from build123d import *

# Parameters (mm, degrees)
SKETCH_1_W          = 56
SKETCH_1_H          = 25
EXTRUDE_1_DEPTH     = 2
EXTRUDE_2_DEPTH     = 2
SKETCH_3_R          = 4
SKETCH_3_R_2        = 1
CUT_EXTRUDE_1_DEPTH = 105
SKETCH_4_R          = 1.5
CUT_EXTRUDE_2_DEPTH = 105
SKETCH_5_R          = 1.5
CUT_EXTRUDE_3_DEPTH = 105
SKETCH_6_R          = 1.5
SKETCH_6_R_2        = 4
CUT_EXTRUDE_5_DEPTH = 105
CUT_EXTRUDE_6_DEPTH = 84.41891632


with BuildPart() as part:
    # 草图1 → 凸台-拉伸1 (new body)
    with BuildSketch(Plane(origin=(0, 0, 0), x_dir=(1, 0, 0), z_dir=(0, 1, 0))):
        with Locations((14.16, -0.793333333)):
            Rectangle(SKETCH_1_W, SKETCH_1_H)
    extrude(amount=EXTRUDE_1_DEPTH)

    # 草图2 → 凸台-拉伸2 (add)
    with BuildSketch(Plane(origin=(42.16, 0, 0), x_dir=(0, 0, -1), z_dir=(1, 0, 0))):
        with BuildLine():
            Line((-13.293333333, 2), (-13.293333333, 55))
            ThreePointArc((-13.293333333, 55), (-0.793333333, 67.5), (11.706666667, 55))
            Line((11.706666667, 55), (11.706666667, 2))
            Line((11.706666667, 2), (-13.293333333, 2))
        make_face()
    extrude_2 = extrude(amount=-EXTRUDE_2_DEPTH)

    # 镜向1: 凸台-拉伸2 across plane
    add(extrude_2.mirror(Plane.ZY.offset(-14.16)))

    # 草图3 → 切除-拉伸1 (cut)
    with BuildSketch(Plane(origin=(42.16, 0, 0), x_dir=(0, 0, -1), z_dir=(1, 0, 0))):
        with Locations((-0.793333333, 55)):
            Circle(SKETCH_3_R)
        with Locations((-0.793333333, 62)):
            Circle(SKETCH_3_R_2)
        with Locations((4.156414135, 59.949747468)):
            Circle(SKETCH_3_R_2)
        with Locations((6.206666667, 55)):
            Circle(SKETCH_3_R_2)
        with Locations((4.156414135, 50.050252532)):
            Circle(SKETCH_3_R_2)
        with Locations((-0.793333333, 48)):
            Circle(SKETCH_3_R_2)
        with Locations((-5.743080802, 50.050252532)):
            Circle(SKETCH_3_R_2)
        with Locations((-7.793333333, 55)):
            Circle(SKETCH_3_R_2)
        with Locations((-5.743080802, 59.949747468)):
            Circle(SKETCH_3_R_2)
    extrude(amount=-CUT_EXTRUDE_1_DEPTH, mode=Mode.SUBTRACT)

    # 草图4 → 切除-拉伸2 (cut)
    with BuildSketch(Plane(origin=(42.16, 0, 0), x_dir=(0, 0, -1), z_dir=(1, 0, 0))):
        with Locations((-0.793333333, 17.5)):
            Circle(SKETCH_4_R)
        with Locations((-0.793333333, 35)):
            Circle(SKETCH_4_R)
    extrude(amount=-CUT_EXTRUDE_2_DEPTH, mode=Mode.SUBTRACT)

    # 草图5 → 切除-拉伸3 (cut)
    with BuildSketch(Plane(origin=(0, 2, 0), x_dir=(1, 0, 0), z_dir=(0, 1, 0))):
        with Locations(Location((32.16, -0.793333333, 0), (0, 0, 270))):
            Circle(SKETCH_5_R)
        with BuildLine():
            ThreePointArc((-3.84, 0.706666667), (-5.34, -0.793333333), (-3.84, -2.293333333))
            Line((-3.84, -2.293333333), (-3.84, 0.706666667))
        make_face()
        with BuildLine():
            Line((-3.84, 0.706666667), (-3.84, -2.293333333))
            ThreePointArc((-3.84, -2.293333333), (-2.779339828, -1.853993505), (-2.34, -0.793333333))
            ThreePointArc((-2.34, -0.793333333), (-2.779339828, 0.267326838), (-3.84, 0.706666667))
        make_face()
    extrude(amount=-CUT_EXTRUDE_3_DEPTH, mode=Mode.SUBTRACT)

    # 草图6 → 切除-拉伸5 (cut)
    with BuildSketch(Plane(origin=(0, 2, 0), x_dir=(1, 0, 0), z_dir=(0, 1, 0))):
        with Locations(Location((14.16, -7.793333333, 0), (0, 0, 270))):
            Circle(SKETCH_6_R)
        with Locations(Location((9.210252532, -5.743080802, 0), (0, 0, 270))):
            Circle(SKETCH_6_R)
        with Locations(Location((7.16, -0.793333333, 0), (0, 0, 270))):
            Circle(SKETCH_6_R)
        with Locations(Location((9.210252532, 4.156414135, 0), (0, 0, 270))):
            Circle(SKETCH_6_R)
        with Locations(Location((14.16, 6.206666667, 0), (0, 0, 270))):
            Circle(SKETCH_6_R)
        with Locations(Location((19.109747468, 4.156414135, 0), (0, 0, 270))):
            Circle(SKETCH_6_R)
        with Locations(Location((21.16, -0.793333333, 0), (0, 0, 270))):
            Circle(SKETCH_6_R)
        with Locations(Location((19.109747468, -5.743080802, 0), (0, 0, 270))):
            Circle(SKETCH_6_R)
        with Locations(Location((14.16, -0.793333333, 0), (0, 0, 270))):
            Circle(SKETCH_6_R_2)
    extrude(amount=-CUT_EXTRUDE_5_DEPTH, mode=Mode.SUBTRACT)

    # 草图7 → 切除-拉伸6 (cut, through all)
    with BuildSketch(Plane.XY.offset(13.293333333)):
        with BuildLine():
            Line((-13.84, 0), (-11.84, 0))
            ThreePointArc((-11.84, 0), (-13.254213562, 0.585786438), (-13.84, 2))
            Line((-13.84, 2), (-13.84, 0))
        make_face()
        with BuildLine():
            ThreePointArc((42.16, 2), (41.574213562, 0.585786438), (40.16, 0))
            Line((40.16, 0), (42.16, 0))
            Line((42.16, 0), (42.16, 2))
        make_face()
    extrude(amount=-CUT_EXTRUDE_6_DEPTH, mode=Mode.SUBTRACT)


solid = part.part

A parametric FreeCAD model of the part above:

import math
import FreeCAD as App
import Part
import Sketcher
Q = App.Units.Quantity


def add_polygon(sketch, points):
    """Adds a closed chain of lines whose ends are joined by coincident constraints."""
    first, n = sketch.GeometryCount, len(points)
    for a, b in zip(points, points[1:] + points[:1]):
        sketch.addGeometry(Part.LineSegment(App.Vector(*a, 0), App.Vector(*b, 0)), False)
    for i in range(n):
        sketch.addConstraint(Sketcher.Constraint("Coincident", first + i, 2, first + (i + 1) % n, 1))

doc = App.newDocument("Part")
body = doc.addObject("PartDesign::Body", "Body")

sketch1 = doc.addObject("Sketcher::SketchObject", "Sketch")
body.addObject(sketch1)
sketch1.AttachmentSupport = (doc.XZ_Plane, [""])
sketch1.MapMode = "FlatFace"
add_polygon(sketch1, [(-14, -12), (-14, 13), (42, 13), (42, -12)])
sketch1.addConstraint(Sketcher.Constraint("Vertical", 0))
sketch1.addConstraint(Sketcher.Constraint("Horizontal", 1))
sketch1.addConstraint(Sketcher.Constraint("Vertical", 2))
sketch1.addConstraint(Sketcher.Constraint("Horizontal", 3))
sketch1.addConstraint(Sketcher.Constraint("DistanceX", 1, 1, 1, 2, Q("56 mm")))
sketch1.addConstraint(Sketcher.Constraint("DistanceY", 0, 1, 0, 2, Q("25 mm")))
sketch1.addConstraint(Sketcher.Constraint("DistanceX", 0, 2, -1, 1, Q("13.84 mm")))
sketch1.addConstraint(Sketcher.Constraint("DistanceY", -1, 1, 0, 2, Q("13.293333 mm")))
pad1 = doc.addObject("PartDesign::Pad", "Pad")
body.addObject(pad1)
pad1.Profile = sketch1
pad1.Length = 2
pad1.Reversed = True

sketch2 = doc.addObject("Sketcher::SketchObject", "Sketch001")
body.addObject(sketch2)
sketch2.AttachmentSupport = (doc.YZ_Plane, [""])
sketch2.MapMode = "FlatFace"
sketch2.AttachmentOffset = App.Placement(App.Vector(0, 0, 42.16), App.Rotation())
sketch2.addGeometry(Part.LineSegment(App.Vector(55, 13, 0), App.Vector(2, 13, 0)), False)
sketch2.addGeometry(Part.LineSegment(App.Vector(2, 13, 0), App.Vector(2, -12, 0)), False)
sketch2.addGeometry(Part.LineSegment(App.Vector(2, -12, 0), App.Vector(55, -12, 0)), False)
sketch2.addGeometry(Part.ArcOfCircle(Part.Circle(App.Vector(55, 1, 0), App.Vector(0, 0, 1), 12), math.radians(-90), math.radians(90)), False)
sketch2.addConstraint(Sketcher.Constraint("Coincident", 0, 2, 1, 1))
sketch2.addConstraint(Sketcher.Constraint("Coincident", 1, 2, 2, 1))
sketch2.addConstraint(Sketcher.Constraint("Tangent", 2, 2, 3, 1))
sketch2.addConstraint(Sketcher.Constraint("Tangent", 3, 2, 0, 1))
sketch2.addConstraint(Sketcher.Constraint("Horizontal", 0))
sketch2.addConstraint(Sketcher.Constraint("Vertical", 1))
sketch2.addConstraint(Sketcher.Constraint("Horizontal", 2))
sketch2.addConstraint(Sketcher.Constraint("Radius", 3, Q("12.5 mm")))
sketch2.addConstraint(Sketcher.Constraint("DistanceX", 0, 2, 0, 1, Q("53 mm")))
sketch2.addConstraint(Sketcher.Constraint("DistanceX", -1, 1, 3, 3, Q("55 mm")))
sketch2.addConstraint(Sketcher.Constraint("DistanceY", -1, 1, 3, 3, Q("0.793333 mm")))
pad2 = doc.addObject("PartDesign::Pad", "Pad001")
body.addObject(pad2)
pad2.Profile = sketch2
pad2.Length = 2
pad2.Reversed = True
doc.recompute()

datumplane = doc.addObject("PartDesign::Plane", "DatumPlane")
body.addObject(datumplane)
datumplane.AttachmentSupport = (doc.YZ_Plane, [""])
datumplane.MapMode = "FlatFace"
datumplane.AttachmentOffset = App.Placement(App.Vector(0, 0, 14.16), App.Rotation())
mirrored = doc.addObject("PartDesign::Mirrored", "Mirrored")
body.addObject(mirrored)
mirrored.Originals = [pad2]
mirrored.MirrorPlane = (datumplane, [""])
body.Tip = mirrored

sketch3 = doc.addObject("Sketcher::SketchObject", "Sketch002")
body.addObject(sketch3)
sketch3.AttachmentSupport = (doc.YZ_Plane, [""])
sketch3.MapMode = "FlatFace"
sketch3.AttachmentOffset = App.Placement(App.Vector(0, 0, 42.16), App.Rotation())
sketch3.addGeometry(Part.Circle(App.Vector(55, 0.8, 0), App.Vector(0, 0, 1), 4), False)
sketch3.addGeometry(Part.Circle(App.Vector(62, 0.8, 0), App.Vector(0, 0, 1), 1), False)
sketch3.addGeometry(Part.Circle(App.Vector(59.9, -4.2, 0), App.Vector(0, 0, 1), 1), False)
sketch3.addGeometry(Part.Circle(App.Vector(55, -6.2, 0), App.Vector(0, 0, 1), 1), False)
sketch3.addGeometry(Part.Circle(App.Vector(50.1, -4.2, 0), App.Vector(0, 0, 1), 1), False)
sketch3.addGeometry(Part.Circle(App.Vector(48, 0.8, 0), App.Vector(0, 0, 1), 1), False)
sketch3.addGeometry(Part.Circle(App.Vector(50.1, 5.7, 0), App.Vector(0, 0, 1), 1), False)
sketch3.addGeometry(Part.Circle(App.Vector(55, 7.8, 0), App.Vector(0, 0, 1), 1), False)
sketch3.addGeometry(Part.Circle(App.Vector(59.9, 5.7, 0), App.Vector(0, 0, 1), 1), False)
sketch3.addConstraint(Sketcher.Constraint("Equal", 1, 2))
sketch3.addConstraint(Sketcher.Constraint("Equal", 2, 3))
sketch3.addConstraint(Sketcher.Constraint("Equal", 3, 4))
sketch3.addConstraint(Sketcher.Constraint("Equal", 4, 5))
sketch3.addConstraint(Sketcher.Constraint("Equal", 5, 6))
sketch3.addConstraint(Sketcher.Constraint("Equal", 6, 7))
sketch3.addConstraint(Sketcher.Constraint("Equal", 7, 8))
sketch3.addConstraint(Sketcher.Constraint("Horizontal", 0, 3, 1, 3))
sketch3.addConstraint(Sketcher.Constraint("Horizontal", 2, 3, 4, 3))
sketch3.addConstraint(Sketcher.Constraint("Horizontal", 1, 3, 5, 3))
sketch3.addConstraint(Sketcher.Constraint("Horizontal", 6, 3, 8, 3))
sketch3.addConstraint(Sketcher.Constraint("Vertical", 0, 3, 3, 3))
sketch3.addConstraint(Sketcher.Constraint("Vertical", 4, 3, 6, 3))
sketch3.addConstraint(Sketcher.Constraint("Vertical", 3, 3, 7, 3))
sketch3.addConstraint(Sketcher.Constraint("Vertical", 2, 3, 8, 3))
sketch3.addConstraint(Sketcher.Constraint("Diameter", 0, Q("8 mm")))
sketch3.addConstraint(Sketcher.Constraint("Diameter", 1, Q("2 mm")))
sketch3.addConstraint(Sketcher.Constraint("DistanceX", -1, 1, 0, 3, Q("55 mm")))
sketch3.addConstraint(Sketcher.Constraint("DistanceX", -1, 1, 1, 3, Q("62 mm")))
sketch3.addConstraint(Sketcher.Constraint("DistanceX", -1, 1, 5, 3, Q("48 mm")))
sketch3.addConstraint(Sketcher.Constraint("DistanceY", 3, 3, 0, 3, Q("7 mm")))
sketch3.addConstraint(Sketcher.Constraint("DistanceY", 0, 3, 7, 3, Q("7 mm")))
sketch3.addConstraint(Sketcher.Constraint("DistanceY", -1, 1, 6, 3, Q("5.743081 mm")))
sketch3.addConstraint(Sketcher.Constraint("DistanceY", -1, 1, 0, 3, Q("0.793333 mm")))
sketch3.addConstraint(Sketcher.Constraint("DistanceX", -1, 1, 2, 3, Q("59.949747 mm")))
sketch3.addConstraint(Sketcher.Constraint("DistanceY", 2, 3, -1, 1, Q("4.156414 mm")))
sketch3.addConstraint(Sketcher.Constraint("DistanceX", -1, 1, 4, 3, Q("50.050253 mm")))
pocket1 = doc.addObject("PartDesign::Pocket", "Pocket")
body.addObject(pocket1)
pocket1.Profile = sketch3
pocket1.Length = 105

sketch4 = doc.addObject("Sketcher::SketchObject", "Sketch003")
body.addObject(sketch4)
sketch4.AttachmentSupport = (doc.YZ_Plane, [""])
sketch4.MapMode = "FlatFace"
sketch4.AttachmentOffset = App.Placement(App.Vector(0, 0, 42.16), App.Rotation())
sketch4.addGeometry(Part.Circle(App.Vector(17.5, 0.8, 0), App.Vector(0, 0, 1), 1.5), False)
sketch4.addGeometry(Part.Circle(App.Vector(35, 0.8, 0), App.Vector(0, 0, 1), 1.5), False)
sketch4.addConstraint(Sketcher.Constraint("Equal", 0, 1))
sketch4.addConstraint(Sketcher.Constraint("Horizontal", 0, 3, 1, 3))
sketch4.addConstraint(Sketcher.Constraint("Diameter", 0, Q("3 mm")))
sketch4.addConstraint(Sketcher.Constraint("DistanceX", -1, 1, 1, 3, Q("35 mm")))
sketch4.addConstraint(Sketcher.Constraint("DistanceX", -1, 1, 0, 3, Q("17.5 mm")))
sketch4.addConstraint(Sketcher.Constraint("DistanceY", -1, 1, 0, 3, Q("0.793333 mm")))
pocket2 = doc.addObject("PartDesign::Pocket", "Pocket001")
body.addObject(pocket2)
pocket2.Profile = sketch4
pocket2.Length = 105

sketch5 = doc.addObject("Sketcher::SketchObject", "Sketch004")
body.addObject(sketch5)
sketch5.AttachmentSupport = (doc.XZ_Plane, [""])
sketch5.MapMode = "FlatFace"
sketch5.AttachmentOffset = App.Placement(App.Vector(0, 0, -2), App.Rotation())
sketch5.addGeometry(Part.Circle(App.Vector(32.2, 0.8, 0), App.Vector(0, 0, 1), 1.5), False)
sketch5.addGeometry(Part.ArcOfCircle(Part.Circle(App.Vector(-3.8, 0.8, 0), App.Vector(0, 0, 1), 1.5), math.radians(90), math.radians(270)), False)
sketch5.addGeometry(Part.ArcOfCircle(Part.Circle(App.Vector(-3.8, 0.8, 0), App.Vector(0, 0, 1), 1.5), math.radians(0), math.radians(90)), False)
sketch5.addGeometry(Part.ArcOfCircle(Part.Circle(App.Vector(-3.8, 0.8, 0), App.Vector(0, 0, 1), 1.5), math.radians(-90), math.radians(0)), False)
sketch5.addConstraint(Sketcher.Constraint("Tangent", 1, 1, 2, 2))
sketch5.addConstraint(Sketcher.Constraint("Tangent", 2, 1, 3, 2))
sketch5.addConstraint(Sketcher.Constraint("Tangent", 3, 1, 1, 2))
sketch5.addConstraint(Sketcher.Constraint("Equal", 0, 1))
sketch5.addConstraint(Sketcher.Constraint("Horizontal", 0, 3, 1, 3))
sketch5.addConstraint(Sketcher.Constraint("Horizontal", 3, 3, 2, 1))
sketch5.addConstraint(Sketcher.Constraint("Vertical", 3, 3, 1, 1))
sketch5.addConstraint(Sketcher.Constraint("Vertical", 1, 1, 3, 1))
sketch5.addConstraint(Sketcher.Constraint("Diameter", 0, Q("3 mm")))
sketch5.addConstraint(Sketcher.Constraint("DistanceX", 1, 3, 0, 3, Q("36 mm")))
sketch5.addConstraint(Sketcher.Constraint("DistanceX", -1, 1, 0, 3, Q("32.16 mm")))
sketch5.addConstraint(Sketcher.Constraint("DistanceY", -1, 1, 0, 3, Q("0.793333 mm")))
pocket3 = doc.addObject("PartDesign::Pocket", "Pocket002")
body.addObject(pocket3)
pocket3.Profile = sketch5
pocket3.Length = 105
pocket3.Reversed = True

sketch6 = doc.addObject("Sketcher::SketchObject", "Sketch005")
body.addObject(sketch6)
sketch6.AttachmentSupport = (doc.XZ_Plane, [""])
sketch6.MapMode = "FlatFace"
sketch6.AttachmentOffset = App.Placement(App.Vector(0, 0, -2), App.Rotation())
sketch6.addGeometry(Part.Circle(App.Vector(14.2, 7.8, 0), App.Vector(0, 0, 1), 1.5), False)
sketch6.addGeometry(Part.Circle(App.Vector(9.2, 5.7, 0), App.Vector(0, 0, 1), 1.5), False)
sketch6.addGeometry(Part.Circle(App.Vector(7.2, 0.8, 0), App.Vector(0, 0, 1), 1.5), False)
sketch6.addGeometry(Part.Circle(App.Vector(9.2, -4.2, 0), App.Vector(0, 0, 1), 1.5), False)
sketch6.addGeometry(Part.Circle(App.Vector(14.2, -6.2, 0), App.Vector(0, 0, 1), 1.5), False)
sketch6.addGeometry(Part.Circle(App.Vector(19.1, -4.2, 0), App.Vector(0, 0, 1), 1.5), False)
sketch6.addGeometry(Part.Circle(App.Vector(21.2, 0.8, 0), App.Vector(0, 0, 1), 1.5), False)
sketch6.addGeometry(Part.Circle(App.Vector(19.1, 5.7, 0), App.Vector(0, 0, 1), 1.5), False)
sketch6.addGeometry(Part.Circle(App.Vector(14.2, 0.8, 0), App.Vector(0, 0, 1), 4), False)
sketch6.addConstraint(Sketcher.Constraint("Equal", 0, 1))
sketch6.addConstraint(Sketcher.Constraint("Equal", 1, 2))
sketch6.addConstraint(Sketcher.Constraint("Equal", 2, 3))
sketch6.addConstraint(Sketcher.Constraint("Equal", 3, 4))
sketch6.addConstraint(Sketcher.Constraint("Equal", 4, 5))
sketch6.addConstraint(Sketcher.Constraint("Equal", 5, 6))
sketch6.addConstraint(Sketcher.Constraint("Equal", 6, 7))
sketch6.addConstraint(Sketcher.Constraint("Horizontal", 3, 3, 5, 3))
sketch6.addConstraint(Sketcher.Constraint("Horizontal", 2, 3, 6, 3))
sketch6.addConstraint(Sketcher.Constraint("Horizontal", 1, 3, 7, 3))
sketch6.addConstraint(Sketcher.Constraint("Horizontal", 6, 3, 8, 3))
sketch6.addConstraint(Sketcher.Constraint("Vertical", 1, 3, 3, 3))
sketch6.addConstraint(Sketcher.Constraint("Vertical", 0, 3, 4, 3))
sketch6.addConstraint(Sketcher.Constraint("Vertical", 5, 3, 7, 3))
sketch6.addConstraint(Sketcher.Constraint("Vertical", 4, 3, 8, 3))
sketch6.addConstraint(Sketcher.Constraint("Diameter", 0, Q("3 mm")))
sketch6.addConstraint(Sketcher.Constraint("Diameter", 8, Q("8 mm")))
sketch6.addConstraint(Sketcher.Constraint("DistanceX", 2, 3, 0, 3, Q("7 mm")))
sketch6.addConstraint(Sketcher.Constraint("DistanceY", 2, 3, 0, 3, Q("7 mm")))
sketch6.addConstraint(Sketcher.Constraint("DistanceY", 4, 3, 2, 3, Q("7 mm")))
sketch6.addConstraint(Sketcher.Constraint("DistanceX", 0, 3, 6, 3, Q("7 mm")))
sketch6.addConstraint(Sketcher.Constraint("DistanceX", -1, 1, 0, 3, Q("14.16 mm")))
sketch6.addConstraint(Sketcher.Constraint("DistanceY", -1, 1, 1, 3, Q("5.743081 mm")))
sketch6.addConstraint(Sketcher.Constraint("DistanceY", -1, 1, 0, 3, Q("7.793333 mm")))
sketch6.addConstraint(Sketcher.Constraint("DistanceX", -1, 1, 1, 3, Q("9.210253 mm")))
sketch6.addConstraint(Sketcher.Constraint("DistanceY", 3, 3, -1, 1, Q("4.156414 mm")))
sketch6.addConstraint(Sketcher.Constraint("DistanceX", -1, 1, 5, 3, Q("19.109747 mm")))
pocket4 = doc.addObject("PartDesign::Pocket", "Pocket003")
body.addObject(pocket4)
pocket4.Profile = sketch6
pocket4.Length = 105
pocket4.Reversed = True

sketch7 = doc.addObject("Sketcher::SketchObject", "Sketch006")
body.addObject(sketch7)
sketch7.AttachmentSupport = (doc.XY_Plane, [""])
sketch7.MapMode = "FlatFace"
sketch7.AttachmentOffset = App.Placement(App.Vector(0, 0, 13.293333), App.Rotation())
sketch7.addGeometry(Part.LineSegment(App.Vector(-13.8, 0, 0), App.Vector(-11.8, 0, 0)), False)
sketch7.addGeometry(Part.ArcOfCircle(Part.Circle(App.Vector(-11.8, 2, 0), App.Vector(0, 0, 1), 2), math.radians(-180), math.radians(-90)), False)
sketch7.addGeometry(Part.LineSegment(App.Vector(-13.8, 2, 0), App.Vector(-13.8, 0, 0)), False)
sketch7.addGeometry(Part.ArcOfCircle(Part.Circle(App.Vector(40.2, 2, 0), App.Vector(0, 0, 1), 2), math.radians(-90), math.radians(0)), False)
sketch7.addGeometry(Part.LineSegment(App.Vector(40.2, 0, 0), App.Vector(42.2, 0, 0)), False)
sketch7.addGeometry(Part.LineSegment(App.Vector(42.2, 0, 0), App.Vector(42.2, 2, 0)), False)
sketch7.addConstraint(Sketcher.Constraint("Tangent", 0, 2, 1, 2))
sketch7.addConstraint(Sketcher.Constraint("Tangent", 1, 1, 2, 1))
sketch7.addConstraint(Sketcher.Constraint("Coincident", 2, 2, 0, 1))
sketch7.addConstraint(Sketcher.Constraint("Tangent", 3, 1, 4, 1))
sketch7.addConstraint(Sketcher.Constraint("Coincident", 4, 2, 5, 1))
sketch7.addConstraint(Sketcher.Constraint("Tangent", 5, 2, 3, 2))
sketch7.addConstraint(Sketcher.Constraint("Horizontal", 0))
sketch7.addConstraint(Sketcher.Constraint("Vertical", 2))
sketch7.addConstraint(Sketcher.Constraint("Horizontal", 4))
sketch7.addConstraint(Sketcher.Constraint("Vertical", 5))
sketch7.addConstraint(Sketcher.Constraint("Equal", 1, 3))
sketch7.addConstraint(Sketcher.Constraint("PointOnObject", 0, 2, -1))
sketch7.addConstraint(Sketcher.Constraint("PointOnObject", 3, 1, -1))
sketch7.addConstraint(Sketcher.Constraint("Radius", 1, Q("2 mm")))
sketch7.addConstraint(Sketcher.Constraint("DistanceX", 1, 3, 3, 3, Q("52 mm")))
sketch7.addConstraint(Sketcher.Constraint("DistanceX", 1, 3, -1, 1, Q("11.84 mm")))
pocket5 = doc.addObject("PartDesign::Pocket", "Pocket004")
body.addObject(pocket5)
pocket5.Profile = sketch7
pocket5.Type = "ThroughAll"

doc.recompute()
